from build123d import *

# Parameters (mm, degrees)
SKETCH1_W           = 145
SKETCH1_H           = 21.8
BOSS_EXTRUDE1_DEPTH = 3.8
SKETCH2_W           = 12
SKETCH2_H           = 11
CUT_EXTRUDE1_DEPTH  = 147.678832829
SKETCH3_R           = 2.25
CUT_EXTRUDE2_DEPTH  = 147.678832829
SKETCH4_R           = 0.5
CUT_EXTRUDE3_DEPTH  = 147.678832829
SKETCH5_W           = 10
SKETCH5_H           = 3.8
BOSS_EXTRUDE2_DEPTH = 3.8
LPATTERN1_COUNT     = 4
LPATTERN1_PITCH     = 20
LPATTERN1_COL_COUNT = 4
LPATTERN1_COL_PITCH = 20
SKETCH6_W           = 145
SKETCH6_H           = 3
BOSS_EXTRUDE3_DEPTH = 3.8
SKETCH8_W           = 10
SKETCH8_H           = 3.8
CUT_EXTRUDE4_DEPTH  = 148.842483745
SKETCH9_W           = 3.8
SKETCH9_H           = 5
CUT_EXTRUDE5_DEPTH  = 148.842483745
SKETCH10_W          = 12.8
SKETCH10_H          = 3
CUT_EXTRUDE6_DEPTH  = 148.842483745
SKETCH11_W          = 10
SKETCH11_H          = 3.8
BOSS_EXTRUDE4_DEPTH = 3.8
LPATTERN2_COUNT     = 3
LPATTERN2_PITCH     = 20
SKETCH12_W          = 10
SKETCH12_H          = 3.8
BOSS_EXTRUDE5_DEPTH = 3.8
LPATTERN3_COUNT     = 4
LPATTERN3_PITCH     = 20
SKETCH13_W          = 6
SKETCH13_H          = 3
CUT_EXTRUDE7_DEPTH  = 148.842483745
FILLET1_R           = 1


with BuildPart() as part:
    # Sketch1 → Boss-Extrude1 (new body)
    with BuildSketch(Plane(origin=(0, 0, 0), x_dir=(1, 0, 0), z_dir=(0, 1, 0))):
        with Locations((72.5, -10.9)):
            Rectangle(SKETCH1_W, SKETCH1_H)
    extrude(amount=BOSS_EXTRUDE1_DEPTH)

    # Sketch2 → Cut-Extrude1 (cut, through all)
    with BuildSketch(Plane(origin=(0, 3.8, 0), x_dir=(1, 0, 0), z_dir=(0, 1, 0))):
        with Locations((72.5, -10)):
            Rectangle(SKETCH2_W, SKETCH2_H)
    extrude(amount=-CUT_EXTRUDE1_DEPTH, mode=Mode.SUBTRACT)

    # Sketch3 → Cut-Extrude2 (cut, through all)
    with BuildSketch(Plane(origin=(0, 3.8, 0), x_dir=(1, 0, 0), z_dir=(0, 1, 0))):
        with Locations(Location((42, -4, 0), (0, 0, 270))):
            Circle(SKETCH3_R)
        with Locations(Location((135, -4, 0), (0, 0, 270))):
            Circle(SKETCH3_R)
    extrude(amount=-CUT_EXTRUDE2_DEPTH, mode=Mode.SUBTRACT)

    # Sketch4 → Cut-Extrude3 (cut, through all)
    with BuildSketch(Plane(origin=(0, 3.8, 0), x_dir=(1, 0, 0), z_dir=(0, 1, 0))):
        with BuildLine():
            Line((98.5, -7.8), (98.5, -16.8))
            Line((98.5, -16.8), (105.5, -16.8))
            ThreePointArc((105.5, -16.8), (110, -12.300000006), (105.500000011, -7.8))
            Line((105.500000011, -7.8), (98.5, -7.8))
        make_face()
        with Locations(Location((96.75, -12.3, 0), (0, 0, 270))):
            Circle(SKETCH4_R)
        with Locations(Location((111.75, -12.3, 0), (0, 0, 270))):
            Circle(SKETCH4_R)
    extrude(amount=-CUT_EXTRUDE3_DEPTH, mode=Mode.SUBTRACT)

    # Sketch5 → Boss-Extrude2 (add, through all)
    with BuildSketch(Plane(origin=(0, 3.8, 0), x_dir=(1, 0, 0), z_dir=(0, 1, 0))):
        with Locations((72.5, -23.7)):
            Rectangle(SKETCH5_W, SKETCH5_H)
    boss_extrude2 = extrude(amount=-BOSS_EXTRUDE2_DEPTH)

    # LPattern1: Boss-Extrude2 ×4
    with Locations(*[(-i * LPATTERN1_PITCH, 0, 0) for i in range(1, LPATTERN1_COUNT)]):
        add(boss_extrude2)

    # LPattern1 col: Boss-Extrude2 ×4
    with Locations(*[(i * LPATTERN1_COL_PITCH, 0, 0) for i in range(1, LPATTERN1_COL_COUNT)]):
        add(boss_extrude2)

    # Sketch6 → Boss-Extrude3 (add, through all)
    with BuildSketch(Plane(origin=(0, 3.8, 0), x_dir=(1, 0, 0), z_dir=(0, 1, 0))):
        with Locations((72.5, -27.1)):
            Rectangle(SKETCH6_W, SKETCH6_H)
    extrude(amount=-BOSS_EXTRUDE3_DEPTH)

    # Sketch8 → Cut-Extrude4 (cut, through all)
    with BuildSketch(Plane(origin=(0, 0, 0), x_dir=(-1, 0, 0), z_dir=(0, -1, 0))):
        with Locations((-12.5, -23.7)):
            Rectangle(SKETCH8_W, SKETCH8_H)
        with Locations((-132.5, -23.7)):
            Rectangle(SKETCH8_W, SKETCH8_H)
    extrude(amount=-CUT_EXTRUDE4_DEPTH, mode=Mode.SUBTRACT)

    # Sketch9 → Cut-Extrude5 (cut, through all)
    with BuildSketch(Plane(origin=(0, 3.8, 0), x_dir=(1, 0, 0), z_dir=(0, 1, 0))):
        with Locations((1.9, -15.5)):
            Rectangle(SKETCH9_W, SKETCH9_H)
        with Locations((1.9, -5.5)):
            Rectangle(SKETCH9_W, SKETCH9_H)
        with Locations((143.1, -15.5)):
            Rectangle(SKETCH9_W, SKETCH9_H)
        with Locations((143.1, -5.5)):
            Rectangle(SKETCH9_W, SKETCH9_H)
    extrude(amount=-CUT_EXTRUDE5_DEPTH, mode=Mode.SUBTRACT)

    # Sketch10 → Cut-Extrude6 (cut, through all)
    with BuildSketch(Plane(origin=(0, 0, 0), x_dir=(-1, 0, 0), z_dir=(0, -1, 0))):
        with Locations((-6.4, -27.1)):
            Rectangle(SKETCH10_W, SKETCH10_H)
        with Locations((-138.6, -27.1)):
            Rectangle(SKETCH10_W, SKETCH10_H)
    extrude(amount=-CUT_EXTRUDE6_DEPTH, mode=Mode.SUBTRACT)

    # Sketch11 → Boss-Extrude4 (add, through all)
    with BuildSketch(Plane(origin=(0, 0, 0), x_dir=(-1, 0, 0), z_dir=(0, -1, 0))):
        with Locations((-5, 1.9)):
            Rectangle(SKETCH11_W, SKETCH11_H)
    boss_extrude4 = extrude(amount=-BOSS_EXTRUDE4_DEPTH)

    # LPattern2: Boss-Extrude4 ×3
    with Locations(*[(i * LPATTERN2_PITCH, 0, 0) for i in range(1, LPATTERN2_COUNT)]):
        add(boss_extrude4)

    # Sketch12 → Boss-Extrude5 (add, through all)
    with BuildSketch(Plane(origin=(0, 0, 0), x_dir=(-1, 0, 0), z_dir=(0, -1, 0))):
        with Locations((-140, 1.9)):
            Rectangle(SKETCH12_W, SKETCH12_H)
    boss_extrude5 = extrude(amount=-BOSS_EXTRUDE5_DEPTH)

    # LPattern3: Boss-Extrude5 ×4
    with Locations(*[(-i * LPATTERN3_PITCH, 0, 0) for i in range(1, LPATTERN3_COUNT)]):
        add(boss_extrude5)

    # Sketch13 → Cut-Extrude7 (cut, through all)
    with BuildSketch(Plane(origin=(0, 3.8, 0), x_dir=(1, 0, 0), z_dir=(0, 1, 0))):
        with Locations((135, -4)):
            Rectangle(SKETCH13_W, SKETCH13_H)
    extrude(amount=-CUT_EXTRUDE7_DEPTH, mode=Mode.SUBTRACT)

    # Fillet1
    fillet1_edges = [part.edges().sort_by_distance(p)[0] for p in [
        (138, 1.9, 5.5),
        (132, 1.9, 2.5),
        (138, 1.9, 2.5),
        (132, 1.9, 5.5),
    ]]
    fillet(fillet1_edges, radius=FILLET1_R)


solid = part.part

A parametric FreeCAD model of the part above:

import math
import FreeCAD as App
import Part
import Sketcher
from FreeCAD import Vector


def edges_at(feature, points):
    """Names of the edges that pass closest to the given points."""
    edges = feature.Shape.Edges
    near = lambda p: min(range(len(edges)), key=lambda i: edges[i].distToShape(Part.Vertex(*p))[0])
    return sorted({f"Edge{near(p) + 1}" for p in points})

doc = App.newDocument("Part")
params = doc.addObject("Spreadsheet::Sheet", "Params")
for row, (alias, value) in enumerate([
    ("sketch1_width", "145 mm"),
    ("sketch1_height", "21.8 mm"),
    ("pad1_length", "3.8 mm"),
    ("sketch2_width", "12 mm"),
    ("sketch2_height", "11 mm"),
    ("sketch3_diameter", "4.5 mm"),
    ("sketch4_diameter", "1 mm"),
    ("sketch4_radius", "4.5 mm"),
    ("sketch4_width", "7 mm"),
    ("sketch5_width", "10 mm"),
    ("sketch5_height", "3.8 mm"),
    ("pad2_length", "3.8 mm"),
    ("linearpattern_pitch", "20 mm"),
    ("linearpattern2_pitch", "20 mm"),
    ("sketch6_width", "145 mm"),
    ("sketch6_height", "3 mm"),
    ("pad3_length", "3.8 mm"),
    ("sketch7_width", "10 mm"),
    ("sketch7_height", "3.8 mm"),
    ("sketch8_height", "5 mm"),
    ("sketch8_width", "3.8 mm"),
    ("sketch9_height", "3 mm"),
    ("sketch9_width", "12.8 mm"),
    ("sketch10_width", "10 mm"),
    ("sketch10_height", "3.8 mm"),
    ("pad4_length", "3.8 mm"),
    ("linearpattern3_pitch", "20 mm"),
    ("sketch11_width", "10 mm"),
    ("sketch11_height", "3.8 mm"),
    ("pad5_length", "3.8 mm"),
    ("linearpattern4_pitch", "20 mm"),
    ("sketch12_width", "6 mm"),
    ("sketch12_height", "3 mm"),
    ("fillet_radius", "1 mm"),
], start=1):
    params.set(f"A{row}", alias)
    params.set(f"B{row}", "=" + value)
    params.setAlias(f"B{row}", alias)

body = doc.addObject("PartDesign::Body", "Body")

# Sketch on XZ plane
sketch1 = body.newObject("Sketcher::SketchObject", "Sketch")
sketch1.AttachmentSupport = (doc.getObject("XZ_Plane"), [""])
sketch1.MapMode = "FlatFace"
sketch1.addGeometry(Part.LineSegment(Vector(0, 0, 0), Vector(0, 22, 0)), False)
sketch1.addGeometry(Part.LineSegment(Vector(0, 22, 0), Vector(145, 22, 0)), False)
sketch1.addGeometry(Part.LineSegment(Vector(145, 22, 0), Vector(145, 0, 0)), False)
sketch1.addGeometry(Part.LineSegment(Vector(145, 0, 0), Vector(0, 0, 0)), False)
sketch1.addConstraint(Sketcher.Constraint("Coincident", 0, 2, 1, 1))
sketch1.addConstraint(Sketcher.Constraint("Coincident", 1, 2, 2, 1))
sketch1.addConstraint(Sketcher.Constraint("Coincident", 2, 2, 3, 1))
sketch1.addConstraint(Sketcher.Constraint("Coincident", 3, 2, 0, 1))
sketch1.addConstraint(Sketcher.Constraint("Vertical", 0))
sketch1.addConstraint(Sketcher.Constraint("Horizontal", 1))
sketch1.addConstraint(Sketcher.Constraint("Vertical", 2))
sketch1.addConstraint(Sketcher.Constraint("Horizontal", 3))
sketch1.addConstraint(Sketcher.Constraint("Coincident", 3, 2, -1, 1))
sketch1.addConstraint(Sketcher.Constraint("DistanceX", 1, 1, 1, 2, 145.0))
sketch1.addConstraint(Sketcher.Constraint("DistanceY", 0, 1, 0, 2, 21.8))
sketch1.setExpression("Constraints[9]", "Params.sketch1_width")
sketch1.setExpression("Constraints[10]", "Params.sketch1_height")
pad1 = body.newObject("PartDesign::Pad", "Pad")
pad1.Profile = sketch1
pad1.setExpression("Length", "Params.pad1_length")
pad1.Reversed = True

# Sketch on XZ plane
sketch2 = body.newObject("Sketcher::SketchObject", "Sketch001")
sketch2.AttachmentSupport = (doc.getObject("XZ_Plane"), [""])
sketch2.MapMode = "FlatFace"
sketch2.AttachmentOffset = App.Placement(Vector(0, 0, -3.8), App.Rotation())
sketch2.addGeometry(Part.LineSegment(Vector(66, 4, 0), Vector(66, 16, 0)), False)
sketch2.addGeometry(Part.LineSegment(Vector(66, 16, 0), Vector(78, 16, 0)), False)
sketch2.addGeometry(Part.LineSegment(Vector(78, 16, 0), Vector(78, 4, 0)), False)
sketch2.addGeometry(Part.LineSegment(Vector(78, 4, 0), Vector(66, 4, 0)), False)
sketch2.addConstraint(Sketcher.Constraint("Coincident", 0, 2, 1, 1))
sketch2.addConstraint(Sketcher.Constraint("Coincident", 1, 2, 2, 1))
sketch2.addConstraint(Sketcher.Constraint("Coincident", 2, 2, 3, 1))
sketch2.addConstraint(Sketcher.Constraint("Coincident", 3, 2, 0, 1))
sketch2.addConstraint(Sketcher.Constraint("Vertical", 0))
sketch2.addConstraint(Sketcher.Constraint("Horizontal", 1))
sketch2.addConstraint(Sketcher.Constraint("Vertical", 2))
sketch2.addConstraint(Sketcher.Constraint("Horizontal", 3))
sketch2.addConstraint(Sketcher.Constraint("DistanceX", 1, 1, 1, 2, 12.0))
sketch2.addConstraint(Sketcher.Constraint("DistanceY", 0, 1, 0, 2, 11.0))
sketch2.addConstraint(Sketcher.Constraint("DistanceX", -1, 1, 0, 2, 66.5))
sketch2.addConstraint(Sketcher.Constraint("DistanceY", -1, 1, 0, 2, 15.5))
sketch2.setExpression("Constraints[8]", "Params.sketch2_width")
sketch2.setExpression("Constraints[9]", "Params.sketch2_height")
pocket1 = body.newObject("PartDesign::Pocket", "Pocket")
pocket1.Profile = sketch2
pocket1.Type = "ThroughAll"
pocket1.Reversed = True

# Sketch on XZ plane
sketch3 = body.newObject("Sketcher::SketchObject", "Sketch002")
sketch3.AttachmentSupport = (doc.getObject("XZ_Plane"), [""])
sketch3.MapMode = "FlatFace"
sketch3.AttachmentOffset = App.Placement(Vector(0, 0, -3.8), App.Rotation())
sketch3.addGeometry(Part.Circle(Vector(42, 4, 0), Vector(0, 0, 1), 2.2), False)
sketch3.addGeometry(Part.Circle(Vector(135, 4, 0), Vector(0, 0, 1), 2.2), False)
sketch3.addConstraint(Sketcher.Constraint("Equal", 0, 1))
sketch3.addConstraint(Sketcher.Constraint("Horizontal", 0, 3, 1, 3))
sketch3.addConstraint(Sketcher.Constraint("Diameter", 0, 4.5))
sketch3.addConstraint(Sketcher.Constraint("DistanceX", -1, 1, 0, 3, 42.0))
sketch3.addConstraint(Sketcher.Constraint("DistanceY", -1, 1, 0, 3, 4.0))
sketch3.addConstraint(Sketcher.Constraint("DistanceX", -1, 1, 1, 3, 135.0))
sketch3.setExpression("Constraints[2]", "Params.sketch3_diameter")
pocket2 = body.newObject("PartDesign::Pocket", "Pocket001")
pocket2.Profile = sketch3
pocket2.Type = "ThroughAll"
pocket2.Reversed = True

# Sketch on XZ plane
sketch4 = body.newObject("Sketcher::SketchObject", "Sketch003")
sketch4.AttachmentSupport = (doc.getObject("XZ_Plane"), [""])
sketch4.MapMode = "FlatFace"
sketch4.AttachmentOffset = App.Placement(Vector(0, 0, -3.8), App.Rotation())
sketch4.addGeometry(Part.LineSegment(Vector(98.5, 7.8, 0), Vector(98.5, 16.8, 0)), False)
sketch4.addGeometry(Part.LineSegment(Vector(98.5, 16.8, 0), Vector(105.5, 16.8, 0)), False)
sketch4.addGeometry(Part.ArcOfCircle(Part.Circle(Vector(105.5, 12.3, 0), Vector(0, 0, 1), 4.5), math.radians(-90), math.radians(90)), False)
sketch4.addGeometry(Part.LineSegment(Vector(105.5, 7.8, 0), Vector(98.5, 7.8, 0)), False)
sketch4.addGeometry(Part.Circle(Vector(96.8, 12.3, 0), Vector(0, 0, 1), 0.5), False)
sketch4.addGeometry(Part.Circle(Vector(111.8, 12.3, 0), Vector(0, 0, 1), 0.5), False)
sketch4.addConstraint(Sketcher.Constraint("Coincident", 0, 2, 1, 1))
sketch4.addConstraint(Sketcher.Constraint("Tangent", 1, 2, 2, 2))
sketch4.addConstraint(Sketcher.Constraint("Tangent", 2, 1, 3, 1))
sketch4.addConstraint(Sketcher.Constraint("Coincident", 3, 2, 0, 1))
sketch4.addConstraint(Sketcher.Constraint("Vertical", 0))
sketch4.addConstraint(Sketcher.Constraint("Horizontal", 1))
sketch4.addConstraint(Sketcher.Constraint("Horizontal", 3))
sketch4.addConstraint(Sketcher.Constraint("Equal", 4, 5))
sketch4.addConstraint(Sketcher.Constraint("Horizontal", 2, 3, 4, 3))
sketch4.addConstraint(Sketcher.Constraint("Horizontal", 4, 3, 5, 3))
sketch4.addConstraint(Sketcher.Constraint("Diameter", 4, 1.0))
sketch4.addConstraint(Sketcher.Constraint("Radius", 2, 4.5))
sketch4.addConstraint(Sketcher.Constraint("DistanceX", 1, 1, 1, 2, 7.0))
sketch4.addConstraint(Sketcher.Constraint("DistanceX", 4, 3, 5, 3, 15.0))
sketch4.addConstraint(Sketcher.Constraint("DistanceX", -1, 1, 2, 3, 105.5))
sketch4.addConstraint(Sketcher.Constraint("DistanceY", -1, 1, 2, 3, 12.3))
sketch4.addConstraint(Sketcher.Constraint("DistanceX", -1, 1, 4, 3, 96.75))
sketch4.setExpression("Constraints[10]", "Params.sketch4_diameter")
sketch4.setExpression("Constraints[11]", "Params.sketch4_radius")
sketch4.setExpression("Constraints[12]", "Params.sketch4_width")
pocket3 = body.newObject("PartDesign::Pocket", "Pocket002")
pocket3.Profile = sketch4
pocket3.Type = "ThroughAll"
pocket3.Reversed = True

# Sketch on XZ plane
sketch5 = body.newObject("Sketcher::SketchObject", "Sketch004")
sketch5.AttachmentSupport = (doc.getObject("XZ_Plane"), [""])
sketch5.MapMode = "FlatFace"
sketch5.AttachmentOffset = App.Placement(Vector(0, 0, -3.8), App.Rotation())
sketch5.addGeometry(Part.LineSegment(Vector(67.5, 21.8, 0), Vector(67.5, 25.6, 0)), False)
sketch5.addGeometry(Part.LineSegment(Vector(67.5, 25.6, 0), Vector(77.5, 25.6, 0)), False)
sketch5.addGeometry(Part.LineSegment(Vector(77.5, 25.6, 0), Vector(77.5, 21.8, 0)), False)
sketch5.addGeometry(Part.LineSegment(Vector(77.5, 21.8, 0), Vector(67.5, 21.8, 0)), False)
sketch5.addConstraint(Sketcher.Constraint("Coincident", 0, 2, 1, 1))
sketch5.addConstraint(Sketcher.Constraint("Coincident", 1, 2, 2, 1))
sketch5.addConstraint(Sketcher.Constraint("Coincident", 2, 2, 3, 1))
sketch5.addConstraint(Sketcher.Constraint("Coincident", 3, 2, 0, 1))
sketch5.addConstraint(Sketcher.Constraint("Vertical", 0))
sketch5.addConstraint(Sketcher.Constraint("Horizontal", 1))
sketch5.addConstraint(Sketcher.Constraint("Vertical", 2))
sketch5.addConstraint(Sketcher.Constraint("Horizontal", 3))
sketch5.addConstraint(Sketcher.Constraint("DistanceX", 1, 1, 1, 2, 10.0))
sketch5.addConstraint(Sketcher.Constraint("DistanceY", 0, 1, 0, 2, 3.8))
sketch5.addConstraint(Sketcher.Constraint("DistanceX", -1, 1, 0, 2, 67.5))
sketch5.addConstraint(Sketcher.Constraint("DistanceY", -1, 1, 0, 2, 25.6))
sketch5.setExpression("Constraints[8]", "Params.sketch5_width")
sketch5.setExpression("Constraints[9]", "Params.sketch5_height")
pad2 = body.newObject("PartDesign::Pad", "Pad001")
pad2.Profile = sketch5
pad2.setExpression("Length", "Params.pad2_length")
doc.recompute()

linearpattern = body.newObject("PartDesign::LinearPattern", "LinearPattern")
linearpattern.Originals = [pad2]
linearpattern.Direction = (doc.getObject("X_Axis"), [""])
linearpattern.Mode = "offset"
linearpattern.setExpression("Offset", "Params.linearpattern_pitch")
linearpattern.Occurrences = 4
linearpattern.Reversed = True
body.Tip = linearpattern
doc.recompute()

linearpattern2 = body.newObject("PartDesign::LinearPattern", "LinearPattern001")
linearpattern2.Originals = [pad2]
linearpattern2.Direction = (doc.getObject("X_Axis"), [""])
linearpattern2.Mode = "offset"
linearpattern2.setExpression("Offset", "Params.linearpattern2_pitch")
linearpattern2.Occurrences = 4
body.Tip = linearpattern2

# Sketch on XZ plane
sketch6 = body.newObject("Sketcher::SketchObject", "Sketch005")
sketch6.AttachmentSupport = (doc.getObject("XZ_Plane"), [""])
sketch6.MapMode = "FlatFace"
sketch6.AttachmentOffset = App.Placement(Vector(0, 0, -3.8), App.Rotation())
sketch6.addGeometry(Part.LineSegment(Vector(0, 25.6, 0), Vector(0, 28.6, 0)), False)
sketch6.addGeometry(Part.LineSegment(Vector(0, 28.6, 0), Vector(145, 28.6, 0)), False)
sketch6.addGeometry(Part.LineSegment(Vector(145, 28.6, 0), Vector(145, 25.6, 0)), False)
sketch6.addGeometry(Part.LineSegment(Vector(145, 25.6, 0), Vector(0, 25.6, 0)), False)
sketch6.addConstraint(Sketcher.Constraint("Coincident", 0, 2, 1, 1))
sketch6.addConstraint(Sketcher.Constraint("Coincident", 1, 2, 2, 1))
sketch6.addConstraint(Sketcher.Constraint("Coincident", 2, 2, 3, 1))
sketch6.addConstraint(Sketcher.Constraint("Coincident", 3, 2, 0, 1))
sketch6.addConstraint(Sketcher.Constraint("Vertical", 0))
sketch6.addConstraint(Sketcher.Constraint("Horizontal", 1))
sketch6.addConstraint(Sketcher.Constraint("Vertical", 2))
sketch6.addConstraint(Sketcher.Constraint("Horizontal", 3))
sketch6.addConstraint(Sketcher.Constraint("PointOnObject", 0, 2, -2))
sketch6.addConstraint(Sketcher.Constraint("DistanceX", 1, 1, 1, 2, 145.0))
sketch6.addConstraint(Sketcher.Constraint("DistanceY", 0, 1, 0, 2, 3.0))
sketch6.addConstraint(Sketcher.Constraint("DistanceY", -1, 1, 0, 2, 28.6))
sketch6.setExpression("Constraints[9]", "Params.sketch6_width")
sketch6.setExpression("Constraints[10]", "Params.sketch6_height")
pad3 = body.newObject("PartDesign::Pad", "Pad002")
pad3.Profile = sketch6
pad3.setExpression("Length", "Params.pad3_length")

# Sketch on XZ plane
sketch7 = body.newObject("Sketcher::SketchObject", "Sketch006")
sketch7.AttachmentSupport = (doc.getObject("XZ_Plane"), [""])
sketch7.MapMode = "FlatFace"
sketch7.addGeometry(Part.LineSegment(Vector(17.5, 21.8, 0), Vector(17.5, 25.6, 0)), False)
sketch7.addGeometry(Part.LineSegment(Vector(17.5, 25.6, 0), Vector(7.5, 25.6, 0)), False)
sketch7.addGeometry(Part.LineSegment(Vector(7.5, 25.6, 0), Vector(7.5, 21.8, 0)), False)
sketch7.addGeometry(Part.LineSegment(Vector(7.5, 21.8, 0), Vector(17.5, 21.8, 0)), False)
sketch7.addGeometry(Part.LineSegment(Vector(137.5, 21.8, 0), Vector(137.5, 25.6, 0)), False)
sketch7.addGeometry(Part.LineSegment(Vector(137.5, 25.6, 0), Vector(127.5, 25.6, 0)), False)
sketch7.addGeometry(Part.LineSegment(Vector(127.5, 25.6, 0), Vector(127.5, 21.8, 0)), False)
sketch7.addGeometry(Part.LineSegment(Vector(127.5, 21.8, 0), Vector(137.5, 21.8, 0)), False)
sketch7.addConstraint(Sketcher.Constraint("Coincident", 0, 2, 1, 1))
sketch7.addConstraint(Sketcher.Constraint("Coincident", 1, 2, 2, 1))
sketch7.addConstraint(Sketcher.Constraint("Coincident", 2, 2, 3, 1))
sketch7.addConstraint(Sketcher.Constraint("Coincident", 3, 2, 0, 1))
sketch7.addConstraint(Sketcher.Constraint("Coincident", 4, 2, 5, 1))
sketch7.addConstraint(Sketcher.Constraint("Coincident", 5, 2, 6, 1))
sketch7.addConstraint(Sketcher.Constraint("Coincident", 6, 2, 7, 1))
sketch7.addConstraint(Sketcher.Constraint("Coincident", 7, 2, 4, 1))
sketch7.addConstraint(Sketcher.Constraint("Vertical", 0))
sketch7.addConstraint(Sketcher.Constraint("Horizontal", 1))
sketch7.addConstraint(Sketcher.Constraint("Vertical", 2))
sketch7.addConstraint(Sketcher.Constraint("Horizontal", 3))
sketch7.addConstraint(Sketcher.Constraint("Vertical", 4))
sketch7.addConstraint(Sketcher.Constraint("Horizontal", 5))
sketch7.addConstraint(Sketcher.Constraint("Vertical", 6))
sketch7.addConstraint(Sketcher.Constraint("Horizontal", 7))
sketch7.addConstraint(Sketcher.Constraint("Horizontal", 1, 2, 4, 2))
sketch7.addConstraint(Sketcher.Constraint("Horizontal", 3, 2, 6, 2))
sketch7.addConstraint(Sketcher.Constraint("Equal", 3, 5))
sketch7.addConstraint(Sketcher.Constraint("DistanceX", 1, 2, 1, 1, 10.0))
sketch7.addConstraint(Sketcher.Constraint("DistanceY", 0, 1, 0, 2, 3.8))
sketch7.addConstraint(Sketcher.Constraint("DistanceX", 0, 2, 4, 2, 120.0))
sketch7.addConstraint(Sketcher.Constraint("DistanceX", -1, 1, 0, 2, 17.5))
sketch7.addConstraint(Sketcher.Constraint("DistanceY", -1, 1, 0, 2, 25.6))
sketch7.setExpression("Constraints[19]", "Params.sketch7_width")
sketch7.setExpression("Constraints[20]", "Params.sketch7_height")
pocket4 = body.newObject("PartDesign::Pocket", "Pocket003")
pocket4.Profile = sketch7
pocket4.Type = "ThroughAll"

# Sketch on XZ plane
sketch8 = body.newObject("Sketcher::SketchObject", "Sketch007")
sketch8.AttachmentSupport = (doc.getObject("XZ_Plane"), [""])
sketch8.MapMode = "FlatFace"
sketch8.AttachmentOffset = App.Placement(Vector(0, 0, -3.8), App.Rotation())
sketch8.addGeometry(Part.LineSegment(Vector(0, 13, 0), Vector(0, 18, 0)), False)
sketch8.addGeometry(Part.LineSegment(Vector(0, 18, 0), Vector(3.8, 18, 0)), False)
sketch8.addGeometry(Part.LineSegment(Vector(3.8, 18, 0), Vector(3.8, 13, 0)), False)
sketch8.addGeometry(Part.LineSegment(Vector(3.8, 13, 0), Vector(0, 13, 0)), False)
sketch8.addGeometry(Part.LineSegment(Vector(0, 3, 0), Vector(0, 8, 0)), False)
sketch8.addGeometry(Part.LineSegment(Vector(0, 8, 0), Vector(3.8, 8, 0)), False)
sketch8.addGeometry(Part.LineSegment(Vector(3.8, 8, 0), Vector(3.8, 3, 0)), False)
sketch8.addGeometry(Part.LineSegment(Vector(3.8, 3, 0), Vector(0, 3, 0)), False)
sketch8.addGeometry(Part.LineSegment(Vector(141.2, 13, 0), Vector(141.2, 18, 0)), False)
sketch8.addGeometry(Part.LineSegment(Vector(141.2, 18, 0), Vector(145, 18, 0)), False)
sketch8.addGeometry(Part.LineSegment(Vector(145, 18, 0), Vector(145, 13, 0)), False)
sketch8.addGeometry(Part.LineSegment(Vector(145, 13, 0), Vector(141.2, 13, 0)), False)
sketch8.addGeometry(Part.LineSegment(Vector(141.2, 3, 0), Vector(141.2, 8, 0)), False)
sketch8.addGeometry(Part.LineSegment(Vector(141.2, 8, 0), Vector(145, 8, 0)), False)
sketch8.addGeometry(Part.LineSegment(Vector(145, 8, 0), Vector(145, 3, 0)), False)
sketch8.addGeometry(Part.LineSegment(Vector(145, 3, 0), Vector(141.2, 3, 0)), False)
sketch8.addConstraint(Sketcher.Constraint("Coincident", 0, 2, 1, 1))
sketch8.addConstraint(Sketcher.Constraint("Coincident", 1, 2, 2, 1))
sketch8.addConstraint(Sketcher.Constraint("Coincident", 2, 2, 3, 1))
sketch8.addConstraint(Sketcher.Constraint("Coincident", 3, 2, 0, 1))
sketch8.addConstraint(Sketcher.Constraint("Coincident", 4, 2, 5, 1))
sketch8.addConstraint(Sketcher.Constraint("Coincident", 5, 2, 6, 1))
sketch8.addConstraint(Sketcher.Constraint("Coincident", 6, 2, 7, 1))
sketch8.addConstraint(Sketcher.Constraint("Coincident", 7, 2, 4, 1))
sketch8.addConstraint(Sketcher.Constraint("Coincident", 8, 2, 9, 1))
sketch8.addConstraint(Sketcher.Constraint("Coincident", 9, 2, 10, 1))
sketch8.addConstraint(Sketcher.Constraint("Coincident", 10, 2, 11, 1))
sketch8.addConstraint(Sketcher.Constraint("Coincident", 11, 2, 8, 1))
sketch8.addConstraint(Sketcher.Constraint("Coincident", 12, 2, 13, 1))
sketch8.addConstraint(Sketcher.Constraint("Coincident", 13, 2, 14, 1))
sketch8.addConstraint(Sketcher.Constraint("Coincident", 14, 2, 15, 1))
sketch8.addConstraint(Sketcher.Constraint("Coincident", 15, 2, 12, 1))
sketch8.addConstraint(Sketcher.Constraint("Vertical", 0))
sketch8.addConstraint(Sketcher.Constraint("Horizontal", 1))
sketch8.addConstraint(Sketcher.Constraint("Vertical", 2))
sketch8.addConstraint(Sketcher.Constraint("Horizontal", 3))
sketch8.addConstraint(Sketcher.Constraint("Vertical", 4))
sketch8.addConstraint(Sketcher.Constraint("Horizontal", 5))
sketch8.addConstraint(Sketcher.Constraint("Vertical", 6))
sketch8.addConstraint(Sketcher.Constraint("Horizontal", 7))
sketch8.addConstraint(Sketcher.Constraint("Vertical", 8))
sketch8.addConstraint(Sketcher.Constraint("Horizontal", 9))
sketch8.addConstraint(Sketcher.Constraint("Vertical", 10))
sketch8.addConstraint(Sketcher.Constraint("Horizontal", 11))
sketch8.addConstraint(Sketcher.Constraint("Vertical", 12))
sketch8.addConstraint(Sketcher.Constraint("Horizontal", 13))
sketch8.addConstraint(Sketcher.Constraint("Vertical", 14))
sketch8.addConstraint(Sketcher.Constraint("Horizontal", 15))
sketch8.addConstraint(Sketcher.Constraint("PointOnObject", 0, 2, -2))
sketch8.addConstraint(Sketcher.Constraint("PointOnObject", 4, 2, -2))
sketch8.addConstraint(Sketcher.Constraint("Horizontal", 1, 2, 8, 2))
sketch8.addConstraint(Sketcher.Constraint("Horizontal", 3, 2, 10, 2))
sketch8.addConstraint(Sketcher.Constraint("Horizontal", 5, 2, 12, 2))
sketch8.addConstraint(Sketcher.Constraint("Horizontal", 7, 2, 14, 2))
sketch8.addConstraint(Sketcher.Constraint("Vertical", 2, 2, 5, 2))
sketch8.addConstraint(Sketcher.Constraint("Vertical", 11, 2, 12, 2))
sketch8.addConstraint(Sketcher.Constraint("Vertical", 10, 2, 13, 2))
sketch8.addConstraint(Sketcher.Constraint("Equal", 7, 9))
sketch8.addConstraint(Sketcher.Constraint("Equal", 2, 4))
sketch8.addConstraint(Sketcher.Constraint("DistanceY", 0, 1, 0, 2, 5.0))
sketch8.addConstraint(Sketcher.Constraint("DistanceX", 1, 1, 1, 2, 3.8))
sketch8.addConstraint(Sketcher.Constraint("DistanceY", -1, 1, 0, 2, 18.0))
sketch8.addConstraint(Sketcher.Constraint("DistanceY", -1, 1, 4, 2, 8.0))
sketch8.addConstraint(Sketcher.Constraint("DistanceX", -1, 1, 9, 2, 145.0))
sketch8.setExpression("Constraints[43]", "Params.sketch8_height")
sketch8.setExpression("Constraints[44]", "Params.sketch8_width")
pocket5 = body.newObject("PartDesign::Pocket", "Pocket004")
pocket5.Profile = sketch8
pocket5.Type = "ThroughAll"
pocket5.Reversed = True

# Sketch on XZ plane
sketch9 = body.newObject("Sketcher::SketchObject", "Sketch008")
sketch9.AttachmentSupport = (doc.getObject("XZ_Plane"), [""])
sketch9.MapMode = "FlatFace"
sketch9.addGeometry(Part.LineSegment(Vector(12.8, 25.6, 0), Vector(12.8, 28.6, 0)), False)
sketch9.addGeometry(Part.LineSegment(Vector(12.8, 28.6, 0), Vector(0, 28.6, 0)), False)
sketch9.addGeometry(Part.LineSegment(Vector(0, 28.6, 0), Vector(0, 25.6, 0)), False)
sketch9.addGeometry(Part.LineSegment(Vector(0, 25.6, 0), Vector(12.8, 25.6, 0)), False)
sketch9.addGeometry(Part.LineSegment(Vector(145, 25.6, 0), Vector(145, 28.6, 0)), False)
sketch9.addGeometry(Part.LineSegment(Vector(145, 28.6, 0), Vector(132.2, 28.6, 0)), False)
sketch9.addGeometry(Part.LineSegment(Vector(132.2, 28.6, 0), Vector(132.2, 25.6, 0)), False)
sketch9.addGeometry(Part.LineSegment(Vector(132.2, 25.6, 0), Vector(145, 25.6, 0)), False)
sketch9.addConstraint(Sketcher.Constraint("Coincident", 0, 2, 1, 1))
sketch9.addConstraint(Sketcher.Constraint("Coincident", 1, 2, 2, 1))
sketch9.addConstraint(Sketcher.Constraint("Coincident", 2, 2, 3, 1))
sketch9.addConstraint(Sketcher.Constraint("Coincident", 3, 2, 0, 1))
sketch9.addConstraint(Sketcher.Constraint("Coincident", 4, 2, 5, 1))
sketch9.addConstraint(Sketcher.Constraint("Coincident", 5, 2, 6, 1))
sketch9.addConstraint(Sketcher.Constraint("Coincident", 6, 2, 7, 1))
sketch9.addConstraint(Sketcher.Constraint("Coincident", 7, 2, 4, 1))
sketch9.addConstraint(Sketcher.Constraint("Vertical", 0))
sketch9.addConstraint(Sketcher.Constraint("Horizontal", 1))
sketch9.addConstraint(Sketcher.Constraint("Vertical", 2))
sketch9.addConstraint(Sketcher.Constraint("Horizontal", 3))
sketch9.addConstraint(Sketcher.Constraint("Vertical", 4))
sketch9.addConstraint(Sketcher.Constraint("Horizontal", 5))
sketch9.addConstraint(Sketcher.Constraint("Vertical", 6))
sketch9.addConstraint(Sketcher.Constraint("Horizontal", 7))
sketch9.addConstraint(Sketcher.Constraint("PointOnObject", 1, 2, -2))
sketch9.addConstraint(Sketcher.Constraint("Horizontal", 1, 2, 4, 2))
sketch9.addConstraint(Sketcher.Constraint("Horizontal", 3, 2, 6, 2))
sketch9.addConstraint(Sketcher.Constraint("Equal", 3, 5))
sketch9.addConstraint(Sketcher.Constraint("DistanceY", 0, 1, 0, 2, 3.0))
sketch9.addConstraint(Sketcher.Constraint("DistanceX", 1, 2, 1, 1, 12.8))
sketch9.addConstraint(Sketcher.Constraint("DistanceX", -1, 1, 4, 2, 145.0))
sketch9.addConstraint(Sketcher.Constraint("DistanceY", -1, 1, 0, 2, 28.6))
sketch9.setExpression("Constraints[20]", "Params.sketch9_height")
sketch9.setExpression("Constraints[21]", "Params.sketch9_width")
pocket6 = body.newObject("PartDesign::Pocket", "Pocket005")
pocket6.Profile = sketch9
pocket6.Type = "ThroughAll"

# Sketch on XZ plane
sketch10 = body.newObject("Sketcher::SketchObject", "Sketch009")
sketch10.AttachmentSupport = (doc.getObject("XZ_Plane"), [""])
sketch10.MapMode = "FlatFace"
sketch10.addGeometry(Part.LineSegment(Vector(10, -3.8, 0), Vector(10, 0, 0)), False)
sketch10.addGeometry(Part.LineSegment(Vector(10, 0, 0), Vector(0, 0, 0)), False)
sketch10.addGeometry(Part.LineSegment(Vector(0, 0, 0), Vector(0, -3.8, 0)), False)
sketch10.addGeometry(Part.LineSegment(Vector(0, -3.8, 0), Vector(10, -3.8, 0)), False)
sketch10.addConstraint(Sketcher.Constraint("Coincident", 0, 2, 1, 1))
sketch10.addConstraint(Sketcher.Constraint("Coincident", 1, 2, 2, 1))
sketch10.addConstraint(Sketcher.Constraint("Coincident", 2, 2, 3, 1))
sketch10.addConstraint(Sketcher.Constraint("Coincident", 3, 2, 0, 1))
sketch10.addConstraint(Sketcher.Constraint("Vertical", 0))
sketch10.addConstraint(Sketcher.Constraint("Horizontal", 1))
sketch10.addConstraint(Sketcher.Constraint("Vertical", 2))
sketch10.addConstraint(Sketcher.Constraint("Horizontal", 3))
sketch10.addConstraint(Sketcher.Constraint("Coincident", 1, 2, -1, 1))
sketch10.addConstraint(Sketcher.Constraint("DistanceX", 1, 2, 1, 1, 10.0))
sketch10.addConstraint(Sketcher.Constraint("DistanceY", 0, 1, 0, 2, 3.8))
sketch10.setExpression("Constraints[9]", "Params.sketch10_width")
sketch10.setExpression("Constraints[10]", "Params.sketch10_height")
pad4 = body.newObject("PartDesign::Pad", "Pad003")
pad4.Profile = sketch10
pad4.setExpression("Length", "Params.pad4_length")
pad4.Reversed = True
doc.recompute()

linearpattern3 = body.newObject("PartDesign::LinearPattern", "LinearPattern002")
linearpattern3.Originals = [pad4]
linearpattern3.Direction = (doc.getObject("X_Axis"), [""])
linearpattern3.Mode = "offset"
linearpattern3.setExpression("Offset", "Params.linearpattern3_pitch")
linearpattern3.Occurrences = 3
body.Tip = linearpattern3

# Sketch on XZ plane
sketch11 = body.newObject("Sketcher::SketchObject", "Sketch010")
sketch11.AttachmentSupport = (doc.getObject("XZ_Plane"), [""])
sketch11.MapMode = "FlatFace"
sketch11.addGeometry(Part.LineSegment(Vector(145, -3.8, 0), Vector(145, 0, 0)), False)
sketch11.addGeometry(Part.LineSegment(Vector(145, 0, 0), Vector(135, 0, 0)), False)
sketch11.addGeometry(Part.LineSegment(Vector(135, 0, 0), Vector(135, -3.8, 0)), False)
sketch11.addGeometry(Part.LineSegment(Vector(135, -3.8, 0), Vector(145, -3.8, 0)), False)
sketch11.addConstraint(Sketcher.Constraint("Coincident", 0, 2, 1, 1))
sketch11.addConstraint(Sketcher.Constraint("Coincident", 1, 2, 2, 1))
sketch11.addConstraint(Sketcher.Constraint("Coincident", 2, 2, 3, 1))
sketch11.addConstraint(Sketcher.Constraint("Coincident", 3, 2, 0, 1))
sketch11.addConstraint(Sketcher.Constraint("Vertical", 0))
sketch11.addConstraint(Sketcher.Constraint("Horizontal", 1))
sketch11.addConstraint(Sketcher.Constraint("Vertical", 2))
sketch11.addConstraint(Sketcher.Constraint("Horizontal", 3))
sketch11.addConstraint(Sketcher.Constraint("PointOnObject", 0, 2, -1))
sketch11.addConstraint(Sketcher.Constraint("DistanceX", 1, 2, 1, 1, 10.0))
sketch11.addConstraint(Sketcher.Constraint("DistanceY", 0, 1, 0, 2, 3.8))
sketch11.addConstraint(Sketcher.Constraint("DistanceX", -1, 1, 0, 2, 145.0))
sketch11.setExpression("Constraints[9]", "Params.sketch11_width")
sketch11.setExpression("Constraints[10]", "Params.sketch11_height")
pad5 = body.newObject("PartDesign::Pad", "Pad004")
pad5.Profile = sketch11
pad5.setExpression("Length", "Params.pad5_length")
pad5.Reversed = True
doc.recompute()

linearpattern4 = body.newObject("PartDesign::LinearPattern", "LinearPattern003")
linearpattern4.Originals = [pad5]
linearpattern4.Direction = (doc.getObject("X_Axis"), [""])
linearpattern4.Mode = "offset"
linearpattern4.setExpression("Offset", "Params.linearpattern4_pitch")
linearpattern4.Occurrences = 4
linearpattern4.Reversed = True
body.Tip = linearpattern4

# Sketch on XZ plane
sketch12 = body.newObject("Sketcher::SketchObject", "Sketch011")
sketch12.AttachmentSupport = (doc.getObject("XZ_Plane"), [""])
sketch12.MapMode = "FlatFace"
sketch12.AttachmentOffset = App.Placement(Vector(0, 0, -3.8), App.Rotation())
sketch12.addGeometry(Part.LineSegment(Vector(132, 2.5, 0), Vector(132, 5.5, 0)), False)
sketch12.addGeometry(Part.LineSegment(Vector(132, 5.5, 0), Vector(138, 5.5, 0)), False)
sketch12.addGeometry(Part.LineSegment(Vector(138, 5.5, 0), Vector(138, 2.5, 0)), False)
sketch12.addGeometry(Part.LineSegment(Vector(138, 2.5, 0), Vector(132, 2.5, 0)), False)
sketch12.addConstraint(Sketcher.Constraint("Coincident", 0, 2, 1, 1))
sketch12.addConstraint(Sketcher.Constraint("Coincident", 1, 2, 2, 1))
sketch12.addConstraint(Sketcher.Constraint("Coincident", 2, 2, 3, 1))
sketch12.addConstraint(Sketcher.Constraint("Coincident", 3, 2, 0, 1))
sketch12.addConstraint(Sketcher.Constraint("Vertical", 0))
sketch12.addConstraint(Sketcher.Constraint("Horizontal", 1))
sketch12.addConstraint(Sketcher.Constraint("Vertical", 2))
sketch12.addConstraint(Sketcher.Constraint("Horizontal", 3))
sketch12.addConstraint(Sketcher.Constraint("DistanceX", 1, 1, 1, 2, 6.0))
sketch12.addConstraint(Sketcher.Constraint("DistanceY", 0, 1, 0, 2, 3.0))
sketch12.addConstraint(Sketcher.Constraint("DistanceX", -1, 1, 0, 2, 132.0))
sketch12.addConstraint(Sketcher.Constraint("DistanceY", -1, 1, 0, 2, 5.5))
sketch12.setExpression("Constraints[8]", "Params.sketch12_width")
sketch12.setExpression("Constraints[9]", "Params.sketch12_height")
pocket7 = body.newObject("PartDesign::Pocket", "Pocket006")
pocket7.Profile = sketch12
pocket7.Type = "ThroughAll"
pocket7.Reversed = True
doc.recompute()

fillet = body.newObject("PartDesign::Fillet", "Fillet")
fillet.Base = (pocket7, edges_at(pocket7, [
    (138, 1.9, 5.5),
    (132, 1.9, 2.5),
    (138, 1.9, 2.5),
    (132, 1.9, 5.5),
]))
fillet.setExpression("Radius", "Params.fillet_radius")

doc.recompute()
